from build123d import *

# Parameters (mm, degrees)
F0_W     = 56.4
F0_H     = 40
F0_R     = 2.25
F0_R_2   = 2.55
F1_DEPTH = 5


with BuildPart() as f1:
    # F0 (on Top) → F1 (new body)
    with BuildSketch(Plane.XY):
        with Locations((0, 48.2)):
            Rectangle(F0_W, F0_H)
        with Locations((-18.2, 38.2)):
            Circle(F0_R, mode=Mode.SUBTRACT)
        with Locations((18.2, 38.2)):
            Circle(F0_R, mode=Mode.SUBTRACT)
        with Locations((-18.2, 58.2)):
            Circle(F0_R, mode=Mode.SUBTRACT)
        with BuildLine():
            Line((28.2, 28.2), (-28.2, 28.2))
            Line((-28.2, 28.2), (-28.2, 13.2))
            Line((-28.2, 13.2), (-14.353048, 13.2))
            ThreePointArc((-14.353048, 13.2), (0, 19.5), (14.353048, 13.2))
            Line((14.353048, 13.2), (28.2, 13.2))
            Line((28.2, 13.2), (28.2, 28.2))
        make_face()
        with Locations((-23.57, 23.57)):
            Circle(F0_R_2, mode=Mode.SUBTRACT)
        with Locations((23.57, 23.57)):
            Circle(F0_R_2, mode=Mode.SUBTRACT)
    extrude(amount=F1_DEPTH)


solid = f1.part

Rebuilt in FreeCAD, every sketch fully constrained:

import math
import FreeCAD as App
import Part
import Sketcher
Q = App.Units.Quantity

doc = App.newDocument("Part")
body = doc.addObject("PartDesign::Body", "Body")

# Sketch on XY plane
sketch1 = body.newObject("Sketcher::SketchObject", "Sketch")
sketch1.AttachmentSupport = (doc.getObject("XY_Plane"), [""])
sketch1.MapMode = "FlatFace"
sketch1.addGeometry([
    Part.LineSegment(App.Vector(-28.2, 68.2, 0), App.Vector(-28.2, 13.2, 0)),  # 0
    Part.LineSegment(App.Vector(-28.2, 13.2, 0), App.Vector(-14.353048, 13.2, 0)),  # 1
    Part.ArcOfCircle(Part.Circle(App.Vector(0, 0.000001, 0), App.Vector(0, 0, 1), 19.499999), math.radians(42.603665), math.radians(137.396335)),  # 2
    Part.LineSegment(App.Vector(14.353048, 13.2, 0), App.Vector(28.2, 13.2, 0)),  # 3
    Part.LineSegment(App.Vector(28.2, 13.2, 0), App.Vector(28.2, 68.2, 0)),  # 4
    Part.LineSegment(App.Vector(28.2, 68.2, 0), App.Vector(-28.2, 68.2, 0)),  # 5
    Part.Circle(App.Vector(-23.57, 23.57, 0), App.Vector(0, 0, 1), 2.55),  # 6
    Part.Circle(App.Vector(-18.2, 38.2, 0), App.Vector(0, 0, 1), 2.25),  # 7
    Part.Circle(App.Vector(23.57, 23.57, 0), App.Vector(0, 0, 1), 2.55),  # 8
    Part.Circle(App.Vector(18.2, 38.2, 0), App.Vector(0, 0, 1), 2.25),  # 9
    Part.Circle(App.Vector(-18.2, 58.2, 0), App.Vector(0, 0, 1), 2.25),  # 10
], False)
sketch1.addConstraint([
    Sketcher.Constraint("Coincident", 0, 2, 1, 1),
    Sketcher.Constraint("Coincident", 1, 2, 2, 2),
    Sketcher.Constraint("Coincident", 2, 1, 3, 1),
    Sketcher.Constraint("Coincident", 3, 2, 4, 1),
    Sketcher.Constraint("Coincident", 4, 2, 5, 1),
    Sketcher.Constraint("Coincident", 5, 2, 0, 1),
    Sketcher.Constraint("Vertical", 0),
    Sketcher.Constraint("Horizontal", 1),
    Sketcher.Constraint("Horizontal", 3),
    Sketcher.Constraint("Vertical", 4),
    Sketcher.Constraint("Horizontal", 5),
    Sketcher.Constraint("Coincident", 2, 3, -1, 1),
    Sketcher.Constraint("Equal", 6, 8),
    Sketcher.Constraint("Equal", 7, 9),
    Sketcher.Constraint("Equal", 9, 10),
    Sketcher.Constraint("Symmetric", 6, 3, 8, 3, -2),
    Sketcher.Constraint("Symmetric", 7, 3, 9, 3, -2),
    Sketcher.Constraint("Symmetric", 0, 2, 3, 2, -2),
    Sketcher.Constraint("Vertical", 7, 3, 10, 3),
    Sketcher.Constraint("Diameter", 6, Q("5.1 mm")),
    Sketcher.Constraint("Diameter", 7, Q("4.5 mm")),
    Sketcher.Constraint("Radius", 2, Q("19.499999 mm")),
    Sketcher.Constraint("DistanceY", 0, 2, 0, 1, Q("55 mm")),
    Sketcher.Constraint("DistanceX", 5, 2, 5, 1, Q("56.4 mm")),
    Sketcher.Constraint("DistanceY", 7, 3, 10, 3, Q("20 mm")),
    Sketcher.Constraint("DistanceX", 0, 2, 7, 3, Q("10 mm")),
    Sketcher.Constraint("DistanceY", 0, 2, 7, 3, Q("25 mm")),
    Sketcher.Constraint("DistanceY", -1, 1, 7, 3, Q("38.2 mm")),
    Sketcher.Constraint("DistanceX", 6, 3, -1, 1, Q("23.57 mm")),
    Sketcher.Constraint("DistanceY", -1, 1, 6, 3, Q("23.57 mm")),
])
pad1 = body.newObject("PartDesign::Pad", "Pad")
pad1.Profile = sketch1
pad1.Length = 5

doc.recompute()
